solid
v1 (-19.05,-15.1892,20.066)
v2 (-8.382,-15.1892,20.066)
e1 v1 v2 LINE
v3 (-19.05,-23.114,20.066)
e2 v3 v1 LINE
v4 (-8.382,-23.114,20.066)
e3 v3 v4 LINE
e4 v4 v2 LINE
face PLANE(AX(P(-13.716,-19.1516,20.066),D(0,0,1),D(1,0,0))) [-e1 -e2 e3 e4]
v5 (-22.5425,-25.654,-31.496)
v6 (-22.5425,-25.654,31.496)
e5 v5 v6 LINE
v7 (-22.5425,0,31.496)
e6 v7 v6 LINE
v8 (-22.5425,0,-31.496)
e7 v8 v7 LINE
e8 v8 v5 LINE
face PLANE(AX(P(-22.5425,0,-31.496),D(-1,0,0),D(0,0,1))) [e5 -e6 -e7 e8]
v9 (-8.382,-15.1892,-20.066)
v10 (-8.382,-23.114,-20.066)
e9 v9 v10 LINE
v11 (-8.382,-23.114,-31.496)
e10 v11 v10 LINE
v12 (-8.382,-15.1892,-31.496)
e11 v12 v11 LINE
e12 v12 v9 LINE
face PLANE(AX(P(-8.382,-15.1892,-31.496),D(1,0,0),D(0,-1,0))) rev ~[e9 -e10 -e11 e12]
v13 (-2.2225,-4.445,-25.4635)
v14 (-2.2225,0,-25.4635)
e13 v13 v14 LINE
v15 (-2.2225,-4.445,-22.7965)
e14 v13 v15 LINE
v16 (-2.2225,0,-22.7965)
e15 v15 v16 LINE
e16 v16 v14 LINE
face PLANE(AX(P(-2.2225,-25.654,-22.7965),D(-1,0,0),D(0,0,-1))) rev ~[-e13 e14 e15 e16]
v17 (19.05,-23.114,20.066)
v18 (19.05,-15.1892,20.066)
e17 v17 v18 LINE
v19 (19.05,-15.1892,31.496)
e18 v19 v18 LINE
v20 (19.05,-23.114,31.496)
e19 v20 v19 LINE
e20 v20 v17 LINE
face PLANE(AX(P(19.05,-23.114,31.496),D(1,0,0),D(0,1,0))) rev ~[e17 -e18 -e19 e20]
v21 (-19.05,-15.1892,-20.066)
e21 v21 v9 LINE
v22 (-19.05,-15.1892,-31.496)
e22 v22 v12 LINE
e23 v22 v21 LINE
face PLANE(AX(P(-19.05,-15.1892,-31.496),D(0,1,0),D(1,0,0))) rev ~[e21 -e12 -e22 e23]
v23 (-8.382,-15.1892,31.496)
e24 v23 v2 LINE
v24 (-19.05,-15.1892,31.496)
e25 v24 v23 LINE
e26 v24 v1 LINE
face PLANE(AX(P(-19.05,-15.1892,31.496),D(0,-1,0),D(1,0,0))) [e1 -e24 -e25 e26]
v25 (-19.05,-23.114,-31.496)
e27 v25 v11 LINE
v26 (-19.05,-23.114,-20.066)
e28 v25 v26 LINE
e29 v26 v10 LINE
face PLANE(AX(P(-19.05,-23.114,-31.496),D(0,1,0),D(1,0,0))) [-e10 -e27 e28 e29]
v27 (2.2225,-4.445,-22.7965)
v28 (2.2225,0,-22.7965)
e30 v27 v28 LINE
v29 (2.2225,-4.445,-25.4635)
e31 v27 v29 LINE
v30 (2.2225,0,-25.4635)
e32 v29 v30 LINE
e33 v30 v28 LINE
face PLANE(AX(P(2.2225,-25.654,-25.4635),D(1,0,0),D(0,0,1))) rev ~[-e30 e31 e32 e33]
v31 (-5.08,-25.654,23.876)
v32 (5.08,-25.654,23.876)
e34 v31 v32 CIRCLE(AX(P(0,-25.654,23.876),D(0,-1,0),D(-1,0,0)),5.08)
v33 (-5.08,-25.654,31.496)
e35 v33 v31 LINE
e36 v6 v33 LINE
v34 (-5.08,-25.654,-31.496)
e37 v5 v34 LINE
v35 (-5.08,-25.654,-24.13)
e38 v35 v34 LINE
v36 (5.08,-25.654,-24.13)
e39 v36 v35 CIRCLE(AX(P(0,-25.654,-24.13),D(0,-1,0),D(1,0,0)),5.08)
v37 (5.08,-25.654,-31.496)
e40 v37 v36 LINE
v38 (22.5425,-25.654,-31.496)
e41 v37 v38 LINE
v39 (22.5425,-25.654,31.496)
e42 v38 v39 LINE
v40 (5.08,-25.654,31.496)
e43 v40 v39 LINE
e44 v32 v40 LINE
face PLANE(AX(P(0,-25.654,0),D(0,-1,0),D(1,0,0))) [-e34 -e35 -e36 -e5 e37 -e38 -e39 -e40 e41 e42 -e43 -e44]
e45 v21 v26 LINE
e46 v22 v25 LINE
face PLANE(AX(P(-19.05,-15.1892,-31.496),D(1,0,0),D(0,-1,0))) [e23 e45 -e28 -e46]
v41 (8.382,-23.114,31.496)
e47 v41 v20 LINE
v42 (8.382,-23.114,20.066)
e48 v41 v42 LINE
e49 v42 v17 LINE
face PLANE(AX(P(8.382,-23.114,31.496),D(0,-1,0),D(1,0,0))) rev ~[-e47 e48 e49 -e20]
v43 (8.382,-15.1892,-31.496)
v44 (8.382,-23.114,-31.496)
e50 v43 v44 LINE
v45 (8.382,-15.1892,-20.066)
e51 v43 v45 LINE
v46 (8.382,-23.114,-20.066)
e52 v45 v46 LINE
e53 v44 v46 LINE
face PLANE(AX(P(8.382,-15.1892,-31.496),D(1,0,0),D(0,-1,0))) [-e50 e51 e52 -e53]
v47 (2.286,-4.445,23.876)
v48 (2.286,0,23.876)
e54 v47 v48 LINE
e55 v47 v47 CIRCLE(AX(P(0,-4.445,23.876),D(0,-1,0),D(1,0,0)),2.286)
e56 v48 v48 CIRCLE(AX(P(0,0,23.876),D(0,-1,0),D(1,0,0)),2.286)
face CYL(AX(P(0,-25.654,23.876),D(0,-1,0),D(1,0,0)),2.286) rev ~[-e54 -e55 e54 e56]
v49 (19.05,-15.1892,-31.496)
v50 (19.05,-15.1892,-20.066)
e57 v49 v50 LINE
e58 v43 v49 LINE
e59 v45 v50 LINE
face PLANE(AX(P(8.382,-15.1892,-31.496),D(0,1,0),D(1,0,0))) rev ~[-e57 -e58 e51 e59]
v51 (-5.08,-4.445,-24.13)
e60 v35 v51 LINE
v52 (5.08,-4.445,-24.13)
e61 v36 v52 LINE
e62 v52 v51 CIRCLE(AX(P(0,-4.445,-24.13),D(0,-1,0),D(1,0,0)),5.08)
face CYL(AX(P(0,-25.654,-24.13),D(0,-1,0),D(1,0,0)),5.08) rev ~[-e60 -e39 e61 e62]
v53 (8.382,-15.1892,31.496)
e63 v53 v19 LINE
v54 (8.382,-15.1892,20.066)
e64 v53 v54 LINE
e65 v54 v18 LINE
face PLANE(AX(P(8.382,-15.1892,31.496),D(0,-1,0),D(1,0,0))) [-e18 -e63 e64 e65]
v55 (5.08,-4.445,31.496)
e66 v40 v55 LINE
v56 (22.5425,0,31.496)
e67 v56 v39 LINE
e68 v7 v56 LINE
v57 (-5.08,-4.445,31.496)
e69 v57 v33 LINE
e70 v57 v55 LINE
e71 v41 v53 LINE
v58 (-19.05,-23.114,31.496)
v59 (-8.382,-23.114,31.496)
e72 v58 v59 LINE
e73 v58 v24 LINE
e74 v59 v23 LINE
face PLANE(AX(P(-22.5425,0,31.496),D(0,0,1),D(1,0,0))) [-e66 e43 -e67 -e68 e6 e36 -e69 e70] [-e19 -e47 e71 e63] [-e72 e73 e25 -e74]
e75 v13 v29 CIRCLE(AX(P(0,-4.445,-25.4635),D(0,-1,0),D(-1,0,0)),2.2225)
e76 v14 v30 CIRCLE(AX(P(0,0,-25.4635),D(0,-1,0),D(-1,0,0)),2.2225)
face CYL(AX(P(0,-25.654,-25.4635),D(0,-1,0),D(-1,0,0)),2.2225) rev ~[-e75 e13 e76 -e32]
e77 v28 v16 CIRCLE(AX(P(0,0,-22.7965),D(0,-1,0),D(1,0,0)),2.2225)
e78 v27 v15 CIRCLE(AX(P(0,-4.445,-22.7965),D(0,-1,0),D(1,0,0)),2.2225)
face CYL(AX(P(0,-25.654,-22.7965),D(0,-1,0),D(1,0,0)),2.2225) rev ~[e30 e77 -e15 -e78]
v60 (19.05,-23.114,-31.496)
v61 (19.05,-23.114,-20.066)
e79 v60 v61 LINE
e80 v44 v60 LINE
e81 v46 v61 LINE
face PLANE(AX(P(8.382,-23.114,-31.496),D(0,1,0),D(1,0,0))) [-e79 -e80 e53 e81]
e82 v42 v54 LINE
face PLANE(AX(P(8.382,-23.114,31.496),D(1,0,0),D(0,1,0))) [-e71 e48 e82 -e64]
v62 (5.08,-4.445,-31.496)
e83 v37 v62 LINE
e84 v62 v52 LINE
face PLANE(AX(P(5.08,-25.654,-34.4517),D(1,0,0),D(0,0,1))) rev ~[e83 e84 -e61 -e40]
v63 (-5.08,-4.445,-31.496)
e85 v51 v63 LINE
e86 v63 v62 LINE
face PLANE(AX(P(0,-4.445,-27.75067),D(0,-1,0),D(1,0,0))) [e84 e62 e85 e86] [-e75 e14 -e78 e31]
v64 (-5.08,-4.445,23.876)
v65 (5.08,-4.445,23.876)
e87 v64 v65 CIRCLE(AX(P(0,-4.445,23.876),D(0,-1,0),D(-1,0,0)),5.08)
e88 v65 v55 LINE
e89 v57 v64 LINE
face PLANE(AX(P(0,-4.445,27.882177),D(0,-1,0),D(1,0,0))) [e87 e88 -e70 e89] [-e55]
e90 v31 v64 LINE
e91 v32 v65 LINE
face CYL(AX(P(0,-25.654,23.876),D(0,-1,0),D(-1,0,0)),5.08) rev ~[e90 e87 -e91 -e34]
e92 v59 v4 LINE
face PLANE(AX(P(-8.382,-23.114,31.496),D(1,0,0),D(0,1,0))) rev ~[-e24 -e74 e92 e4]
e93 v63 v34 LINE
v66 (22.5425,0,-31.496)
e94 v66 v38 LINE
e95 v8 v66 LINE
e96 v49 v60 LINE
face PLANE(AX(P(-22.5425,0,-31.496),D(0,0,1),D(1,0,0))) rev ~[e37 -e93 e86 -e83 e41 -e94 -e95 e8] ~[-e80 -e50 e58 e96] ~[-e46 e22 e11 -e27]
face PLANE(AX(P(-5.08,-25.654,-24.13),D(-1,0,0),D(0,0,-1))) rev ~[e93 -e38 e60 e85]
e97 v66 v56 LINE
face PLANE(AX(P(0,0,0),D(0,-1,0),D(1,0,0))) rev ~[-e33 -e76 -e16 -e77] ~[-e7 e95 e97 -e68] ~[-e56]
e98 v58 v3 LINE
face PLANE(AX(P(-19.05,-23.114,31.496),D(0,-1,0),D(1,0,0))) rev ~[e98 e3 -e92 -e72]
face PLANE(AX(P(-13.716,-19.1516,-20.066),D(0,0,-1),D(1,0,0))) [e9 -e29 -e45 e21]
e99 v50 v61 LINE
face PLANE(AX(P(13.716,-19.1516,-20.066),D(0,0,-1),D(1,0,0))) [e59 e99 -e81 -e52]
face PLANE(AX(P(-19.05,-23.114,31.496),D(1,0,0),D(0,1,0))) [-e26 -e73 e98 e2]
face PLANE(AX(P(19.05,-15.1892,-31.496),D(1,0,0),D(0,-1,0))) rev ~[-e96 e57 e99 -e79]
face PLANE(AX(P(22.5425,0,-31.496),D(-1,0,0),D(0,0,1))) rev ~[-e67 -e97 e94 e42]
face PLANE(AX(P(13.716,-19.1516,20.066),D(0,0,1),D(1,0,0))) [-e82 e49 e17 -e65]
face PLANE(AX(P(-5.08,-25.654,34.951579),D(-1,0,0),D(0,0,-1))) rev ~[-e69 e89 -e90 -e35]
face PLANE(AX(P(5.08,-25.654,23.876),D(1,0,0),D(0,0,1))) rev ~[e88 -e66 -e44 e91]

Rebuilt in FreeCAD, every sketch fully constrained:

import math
import FreeCAD as App
import Part
import Sketcher
Q = App.Units.Quantity


def add_polygon(sketch, points):
    """Adds a closed chain of lines whose ends are joined by coincident constraints."""
    first, n = sketch.GeometryCount, len(points)
    for a, b in zip(points, points[1:] + points[:1]):
        sketch.addGeometry(Part.LineSegment(App.Vector(*a, 0), App.Vector(*b, 0)), False)
    for i in range(n):
        sketch.addConstraint(Sketcher.Constraint("Coincident", first + i, 2, first + (i + 1) % n, 1))

doc = App.newDocument("Part")
body = doc.addObject("PartDesign::Body", "Body")

sketch1 = doc.addObject("Sketcher::SketchObject", "Sketch")
body.addObject(sketch1)
sketch1.AttachmentSupport = (doc.XZ_Plane, [""])
sketch1.MapMode = "FlatFace"
add_polygon(sketch1, [(-23, 31), (-23, -31), (23, -31), (23, 31)])
sketch1.addConstraint(Sketcher.Constraint("Vertical", 0))
sketch1.addConstraint(Sketcher.Constraint("Horizontal", 1))
sketch1.addConstraint(Sketcher.Constraint("Vertical", 2))
sketch1.addConstraint(Sketcher.Constraint("Horizontal", 3))
sketch1.addConstraint(Sketcher.Constraint("Symmetric", 0, 2, 2, 2, -1, 1))
sketch1.addConstraint(Sketcher.Constraint("DistanceY", 0, 2, 0, 1, Q("2.48 in")))
sketch1.addConstraint(Sketcher.Constraint("DistanceX", 1, 1, 1, 2, Q("1.775 in")))
pad1 = doc.addObject("PartDesign::Pad", "Pad")
body.addObject(pad1)
pad1.Profile = sketch1
pad1.Length = Q("1.01 in")

sketch2 = doc.addObject("Sketcher::SketchObject", "Sketch001")
body.addObject(sketch2)
sketch2.AttachmentSupport = (doc.XZ_Plane, [""])
sketch2.MapMode = "FlatFace"
sketch2.AttachmentOffset = App.Placement(App.Vector(0, 0, 1.01 * 25.4), App.Rotation())
sketch2.addGeometry(Part.Circle(App.Vector(0, 23.9, 0), App.Vector(0, 0, 1), 2.3), False)
sketch2.addGeometry(Part.LineSegment(App.Vector(-2.2, -22.8, 0), App.Vector(-2.2, -25.5, 0)), False)
sketch2.addGeometry(Part.ArcOfCircle(Part.Circle(App.Vector(0, -25.5, 0), App.Vector(0, 0, 1), 2.2), math.radians(180), math.radians(360)), False)
sketch2.addGeometry(Part.LineSegment(App.Vector(2.2, -25.5, 0), App.Vector(2.2, -22.8, 0)), False)
sketch2.addGeometry(Part.ArcOfCircle(Part.Circle(App.Vector(0, -22.8, 0), App.Vector(0, 0, 1), 2.2), math.radians(0), math.radians(180)), False)
sketch2.addConstraint(Sketcher.Constraint("Tangent", 1, 2, 2, 1))
sketch2.addConstraint(Sketcher.Constraint("Tangent", 2, 2, 3, 1))
sketch2.addConstraint(Sketcher.Constraint("Tangent", 3, 2, 4, 1))
sketch2.addConstraint(Sketcher.Constraint("Tangent", 4, 2, 1, 1))
sketch2.addConstraint(Sketcher.Constraint("Vertical", 1))
sketch2.addConstraint(Sketcher.Constraint("Vertical", 3))
sketch2.addConstraint(Sketcher.Constraint("PointOnObject", 0, 3, -2))
sketch2.addConstraint(Sketcher.Constraint("PointOnObject", 2, 3, -2))
sketch2.addConstraint(Sketcher.Constraint("Diameter", 0, Q("0.18 in")))
sketch2.addConstraint(Sketcher.Constraint("Radius", 2, Q("0.0875 in")))
sketch2.addConstraint(Sketcher.Constraint("DistanceY", 1, 2, 1, 1, Q("0.105 in")))
sketch2.addConstraint(Sketcher.Constraint("DistanceY", -1, 1, 0, 3, Q("0.94 in")))
sketch2.addConstraint(Sketcher.Constraint("DistanceY", 2, 3, -1, 1, Q("1.0025 in")))
pocket1 = doc.addObject("PartDesign::Pocket", "Pocket")
body.addObject(pocket1)
pocket1.Profile = sketch2
pocket1.Length = Q("1.39 in")

sketch3 = doc.addObject("Sketcher::SketchObject", "Sketch002")
body.addObject(sketch3)
sketch3.AttachmentSupport = (doc.XZ_Plane, [""])
sketch3.MapMode = "FlatFace"
sketch3.AttachmentOffset = App.Placement(App.Vector(0, 0, 1.01 * 25.4), App.Rotation())
sketch3.addGeometry(Part.LineSegment(App.Vector(-5, 35, 0), App.Vector(-5, 24, 0)), False)
sketch3.addGeometry(Part.ArcOfCircle(Part.Circle(App.Vector(0, 24, 0), App.Vector(0, 0, 1), 5), math.radians(180), math.radians(360)), False)
sketch3.addGeometry(Part.LineSegment(App.Vector(5, 24, 0), App.Vector(5, 35, 0)), False)
sketch3.addGeometry(Part.LineSegment(App.Vector(5, 35, 0), App.Vector(-5, 35, 0)), False)
sketch3.addGeometry(Part.LineSegment(App.Vector(5, -34, 0), App.Vector(5, -24, 0)), False)
sketch3.addGeometry(Part.ArcOfCircle(Part.Circle(App.Vector(0, -24, 0), App.Vector(0, 0, 1), 5), math.radians(0), math.radians(180)), False)
sketch3.addGeometry(Part.LineSegment(App.Vector(-5, -24, 0), App.Vector(-5, -34, 0)), False)
sketch3.addGeometry(Part.LineSegment(App.Vector(-5, -34, 0), App.Vector(5, -34, 0)), False)
sketch3.addConstraint(Sketcher.Constraint("Tangent", 0, 2, 1, 1))
sketch3.addConstraint(Sketcher.Constraint("Tangent", 1, 2, 2, 1))
sketch3.addConstraint(Sketcher.Constraint("Coincident", 2, 2, 3, 1))
sketch3.addConstraint(Sketcher.Constraint("Coincident", 3, 2, 0, 1))
sketch3.addConstraint(Sketcher.Constraint("Tangent", 4, 2, 5, 1))
sketch3.addConstraint(Sketcher.Constraint("Tangent", 5, 2, 6, 1))
sketch3.addConstraint(Sketcher.Constraint("Coincident", 6, 2, 7, 1))
sketch3.addConstraint(Sketcher.Constraint("Coincident", 7, 2, 4, 1))
sketch3.addConstraint(Sketcher.Constraint("Vertical", 0))
sketch3.addConstraint(Sketcher.Constraint("Vertical", 2))
sketch3.addConstraint(Sketcher.Constraint("Horizontal", 3))
sketch3.addConstraint(Sketcher.Constraint("Vertical", 4))
sketch3.addConstraint(Sketcher.Constraint("Vertical", 6))
sketch3.addConstraint(Sketcher.Constraint("Horizontal", 7))
sketch3.addConstraint(Sketcher.Constraint("Equal", 1, 5))
sketch3.addConstraint(Sketcher.Constraint("PointOnObject", 1, 3, -2))
sketch3.addConstraint(Sketcher.Constraint("PointOnObject", 5, 3, -2))
sketch3.addConstraint(Sketcher.Constraint("Radius", 1, Q("0.2 in")))
sketch3.addConstraint(Sketcher.Constraint("DistanceY", -1, 1, 1, 3, Q("0.94 in")))
sketch3.addConstraint(Sketcher.Constraint("DistanceY", 5, 3, -1, 1, Q("0.95 in")))
sketch3.addConstraint(Sketcher.Constraint("DistanceY", 4, 1, 4, 2, 10.3217))
sketch3.addConstraint(Sketcher.Constraint("DistanceY", 0, 2, 0, 1, 11.075579))
pocket2 = doc.addObject("PartDesign::Pocket", "Pocket001")
body.addObject(pocket2)
pocket2.Profile = sketch3
pocket2.Length = Q("0.835 in")

sketch4 = doc.addObject("Sketcher::SketchObject", "Sketch003")
body.addObject(sketch4)
sketch4.AttachmentSupport = (doc.XY_Plane, [""])
sketch4.MapMode = "FlatFace"
sketch4.AttachmentOffset = App.Placement(App.Vector(0, 0, -1.24 * 25.4), App.Rotation())
add_polygon(sketch4, [(-19, -23), (-19, -15), (-8, -15), (-8, -23)])
add_polygon(sketch4, [(8, -23), (8, -15), (19, -15), (19, -23)])
sketch4.addConstraint(Sketcher.Constraint("Vertical", 0))
sketch4.addConstraint(Sketcher.Constraint("Horizontal", 1))
sketch4.addConstraint(Sketcher.Constraint("Vertical", 2))
sketch4.addConstraint(Sketcher.Constraint("Horizontal", 3))
sketch4.addConstraint(Sketcher.Constraint("Vertical", 4))
sketch4.addConstraint(Sketcher.Constraint("Horizontal", 5))
sketch4.addConstraint(Sketcher.Constraint("Vertical", 6))
sketch4.addConstraint(Sketcher.Constraint("Horizontal", 7))
sketch4.addConstraint(Sketcher.Constraint("Symmetric", 1, 2, 4, 2, -2))
sketch4.addConstraint(Sketcher.Constraint("Symmetric", 3, 2, 6, 2, -2))
sketch4.addConstraint(Sketcher.Constraint("DistanceX", 1, 1, 1, 2, Q("0.42 in")))
sketch4.addConstraint(Sketcher.Constraint("DistanceX", 0, 2, 5, 2, Q("1.5 in")))
sketch4.addConstraint(Sketcher.Constraint("DistanceY", 0, 1, 0, 2, Q("0.312 in")))
sketch4.addConstraint(Sketcher.Constraint("DistanceY", 2, 2, -1, 1, Q("0.91 in")))
pocket3 = doc.addObject("PartDesign::Pocket", "Pocket002")
body.addObject(pocket3)
pocket3.Profile = sketch4
pocket3.Length = Q("0.45 in")
pocket3.Reversed = True

sketch5 = doc.addObject("Sketcher::SketchObject", "Sketch004")
body.addObject(sketch5)
sketch5.AttachmentSupport = (doc.XY_Plane, [""])
sketch5.MapMode = "FlatFace"
sketch5.AttachmentOffset = App.Placement(App.Vector(0, 0, 1.24 * 25.4), App.Rotation())
add_polygon(sketch5, [(8, -15), (8, -23), (19, -23), (19, -15)])
add_polygon(sketch5, [(-19, -15), (-19, -23), (-8, -23), (-8, -15)])
sketch5.addConstraint(Sketcher.Constraint("Vertical", 0))
sketch5.addConstraint(Sketcher.Constraint("Horizontal", 1))
sketch5.addConstraint(Sketcher.Constraint("Vertical", 2))
sketch5.addConstraint(Sketcher.Constraint("Horizontal", 3))
sketch5.addConstraint(Sketcher.Constraint("Vertical", 4))
sketch5.addConstraint(Sketcher.Constraint("Horizontal", 5))
sketch5.addConstraint(Sketcher.Constraint("Vertical", 6))
sketch5.addConstraint(Sketcher.Constraint("Horizontal", 7))
sketch5.addConstraint(Sketcher.Constraint("Symmetric", 1, 2, 4, 2, -2))
sketch5.addConstraint(Sketcher.Constraint("Symmetric", 3, 2, 6, 2, -2))
sketch5.addConstraint(Sketcher.Constraint("DistanceX", 1, 1, 1, 2, Q("0.42 in")))
sketch5.addConstraint(Sketcher.Constraint("DistanceX", 4, 2, 1, 2, Q("1.5 in")))
sketch5.addConstraint(Sketcher.Constraint("DistanceY", 0, 2, 0, 1, Q("0.312 in")))
sketch5.addConstraint(Sketcher.Constraint("DistanceY", 0, 2, -1, 1, Q("0.91 in")))
pocket4 = doc.addObject("PartDesign::Pocket", "Pocket003")
body.addObject(pocket4)
pocket4.Profile = sketch5
pocket4.Length = Q("0.45 in")

doc.recompute()
